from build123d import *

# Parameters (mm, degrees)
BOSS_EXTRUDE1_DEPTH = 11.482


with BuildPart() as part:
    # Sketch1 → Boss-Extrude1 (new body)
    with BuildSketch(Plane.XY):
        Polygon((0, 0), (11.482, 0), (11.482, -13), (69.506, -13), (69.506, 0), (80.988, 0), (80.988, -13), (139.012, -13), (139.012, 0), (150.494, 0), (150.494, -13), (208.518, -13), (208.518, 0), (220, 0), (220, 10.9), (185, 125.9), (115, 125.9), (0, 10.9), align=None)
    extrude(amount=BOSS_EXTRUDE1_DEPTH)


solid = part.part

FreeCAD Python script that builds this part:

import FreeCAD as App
import Part
import Sketcher
from FreeCAD import Vector
Q = App.Units.Quantity


def add_polygon(sketch, points):
    """Adds a closed chain of lines whose ends are joined by coincident constraints."""
    first, n = sketch.GeometryCount, len(points)
    for a, b in zip(points, points[1:] + points[:1]):
        sketch.addGeometry(Part.LineSegment(App.Vector(*a, 0), App.Vector(*b, 0)), False)
    for i in range(n):
        sketch.addConstraint(Sketcher.Constraint("Coincident", first + i, 2, first + (i + 1) % n, 1))

doc = App.newDocument("Part")
body = doc.addObject("PartDesign::Body", "Body")

sketch1 = body.newObject("Sketcher::SketchObject", "Sketch")
sketch1.AttachmentSupport = (doc.getObject("XY_Plane"), [""])
sketch1.MapMode = "FlatFace"
add_polygon(sketch1, [(0, 0), (11.482, 0), (11.482, -13), (69.506, -13), (69.506, 0), (80.988, 0), (80.988, -13), (139.012, -13), (139.012, 0), (150.494, 0), (150.494, -13), (208.518, -13), (208.518, 0), (220, 0), (220, 10.9), (185, 125.9), (115, 125.9), (0, 10.9)])
sketch1.addConstraint([
    Sketcher.Constraint("Horizontal", 0),
    Sketcher.Constraint("Vertical", 1),
    Sketcher.Constraint("Horizontal", 2),
    Sketcher.Constraint("Vertical", 3),
    Sketcher.Constraint("Horizontal", 4),
    Sketcher.Constraint("Vertical", 5),
    Sketcher.Constraint("Horizontal", 6),
    Sketcher.Constraint("Vertical", 7),
    Sketcher.Constraint("Horizontal", 8),
    Sketcher.Constraint("Vertical", 9),
    Sketcher.Constraint("Horizontal", 10),
    Sketcher.Constraint("Vertical", 11),
    Sketcher.Constraint("Horizontal", 12),
    Sketcher.Constraint("Vertical", 13),
    Sketcher.Constraint("Horizontal", 15),
    Sketcher.Constraint("Vertical", 17),
    Sketcher.Constraint("Coincident", 17, 2, -1, 1),
    Sketcher.Constraint("PointOnObject", 3, 2, -1),
    Sketcher.Constraint("PointOnObject", 7, 2, -1),
    Sketcher.Constraint("PointOnObject", 11, 2, -1),
    Sketcher.Constraint("Horizontal", 2, 2, 5, 2),
    Sketcher.Constraint("Horizontal", 6, 2, 9, 2),
    Sketcher.Constraint("Horizontal", 13, 2, 16, 2),
    Sketcher.Constraint("Equal", 0, 4),
    Sketcher.Constraint("Equal", 2, 6),
    Sketcher.Constraint("Equal", 4, 8),
    Sketcher.Constraint("Equal", 6, 10),
    Sketcher.Constraint("Equal", 8, 12),
    Sketcher.Constraint("DistanceX", 15, 2, 15, 1, 70.0),
    Sketcher.Constraint("DistanceY", 1, 2, 1, 1, 13.0),
    Sketcher.Constraint("Angle", 16, Q("-135 deg")),
    Sketcher.Constraint("DistanceY", 13, 1, 13, 2, 10.9),
    Sketcher.Constraint("DistanceX", -1, 1, 12, 2, 220.0),
    Sketcher.Constraint("DistanceX", -1, 1, 14, 2, 185.0),
    Sketcher.Constraint("DistanceX", 0, 1, 0, 2, 11.482),
])
pad1 = body.newObject("PartDesign::Pad", "Pad")
pad1.Profile = sketch1
pad1.Length = 11.482

doc.recompute()
